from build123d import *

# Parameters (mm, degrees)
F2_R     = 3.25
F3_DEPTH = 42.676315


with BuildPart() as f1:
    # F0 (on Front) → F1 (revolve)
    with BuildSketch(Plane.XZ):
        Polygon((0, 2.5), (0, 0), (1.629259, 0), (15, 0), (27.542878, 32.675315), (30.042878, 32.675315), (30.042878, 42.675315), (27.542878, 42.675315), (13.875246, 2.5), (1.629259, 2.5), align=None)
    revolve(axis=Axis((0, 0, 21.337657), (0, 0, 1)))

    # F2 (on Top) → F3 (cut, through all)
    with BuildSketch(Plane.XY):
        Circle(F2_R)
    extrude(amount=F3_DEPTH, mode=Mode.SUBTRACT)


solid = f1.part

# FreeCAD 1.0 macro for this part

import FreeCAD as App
import Part
import Sketcher
from FreeCAD import Vector
Q = App.Units.Quantity


def add_polygon(sketch, points):
    """Adds a closed chain of lines whose ends are joined by coincident constraints."""
    first, n = sketch.GeometryCount, len(points)
    for a, b in zip(points, points[1:] + points[:1]):
        sketch.addGeometry(Part.LineSegment(App.Vector(*a, 0), App.Vector(*b, 0)), False)
    for i in range(n):
        sketch.addConstraint(Sketcher.Constraint("Coincident", first + i, 2, first + (i + 1) % n, 1))

doc = App.newDocument("Part")
body = doc.addObject("PartDesign::Body", "Body")

# Sketch on XZ plane
sketch1 = doc.addObject("Sketcher::SketchObject", "Sketch")
body.addObject(sketch1)
sketch1.AttachmentSupport = (doc.XZ_Plane, [""])
sketch1.MapMode = "FlatFace"
add_polygon(sketch1, [(0, 2.5), (0, 0), (15, 0), (27.5, 32.7), (30, 32.7), (30, 42.7), (27.5, 42.7), (13.9, 2.5)])  # lines 0-7
sketch1.addConstraint([
    Sketcher.Constraint("Vertical", 0),
    Sketcher.Constraint("Horizontal", 1),
    Sketcher.Constraint("Horizontal", 3),
    Sketcher.Constraint("Vertical", 4),
    Sketcher.Constraint("Horizontal", 5),
    Sketcher.Constraint("Horizontal", 7),
    Sketcher.Constraint("Coincident", 0, 2, -1, 1),
    Sketcher.Constraint("Vertical", 2, 2, 5, 2),
    Sketcher.Constraint("Equal", 5, 0),
    Sketcher.Constraint("DistanceX", 1, 1, 1, 2, 15.0),
    Sketcher.Constraint("DistanceY", 4, 1, 4, 2, 10.0),
    Sketcher.Constraint("Angle", 2, Q("69 deg")),
    Sketcher.Constraint("Distance", 2, 35.0),
    Sketcher.Constraint("DistanceX", 3, 1, 3, 2, 2.5),
    Sketcher.Constraint("DistanceX", 7, 2, 7, 1, 13.875246),
])
revolution = doc.addObject("PartDesign::Revolution", "Revolution")
body.addObject(revolution)
revolution.Profile = sketch1
revolution.ReferenceAxis = (sketch1, ["V_Axis"])
revolution.Angle = 360

# Sketch on XY plane
sketch2 = doc.addObject("Sketcher::SketchObject", "Sketch001")
body.addObject(sketch2)
sketch2.AttachmentSupport = (doc.XY_Plane, [""])
sketch2.MapMode = "FlatFace"
sketch2.addGeometry(Part.Circle(Vector(0, 0, 0), Vector(0, 0, 1), 3.2), False)
sketch2.addConstraint([
    Sketcher.Constraint("Coincident", 0, 3, -1, 1),
    Sketcher.Constraint("Diameter", 0, 6.5),
])
pocket1 = doc.addObject("PartDesign::Pocket", "Pocket")
body.addObject(pocket1)
pocket1.Profile = sketch2
pocket1.Type = "ThroughAll"
pocket1.Reversed = True

doc.recompute()
